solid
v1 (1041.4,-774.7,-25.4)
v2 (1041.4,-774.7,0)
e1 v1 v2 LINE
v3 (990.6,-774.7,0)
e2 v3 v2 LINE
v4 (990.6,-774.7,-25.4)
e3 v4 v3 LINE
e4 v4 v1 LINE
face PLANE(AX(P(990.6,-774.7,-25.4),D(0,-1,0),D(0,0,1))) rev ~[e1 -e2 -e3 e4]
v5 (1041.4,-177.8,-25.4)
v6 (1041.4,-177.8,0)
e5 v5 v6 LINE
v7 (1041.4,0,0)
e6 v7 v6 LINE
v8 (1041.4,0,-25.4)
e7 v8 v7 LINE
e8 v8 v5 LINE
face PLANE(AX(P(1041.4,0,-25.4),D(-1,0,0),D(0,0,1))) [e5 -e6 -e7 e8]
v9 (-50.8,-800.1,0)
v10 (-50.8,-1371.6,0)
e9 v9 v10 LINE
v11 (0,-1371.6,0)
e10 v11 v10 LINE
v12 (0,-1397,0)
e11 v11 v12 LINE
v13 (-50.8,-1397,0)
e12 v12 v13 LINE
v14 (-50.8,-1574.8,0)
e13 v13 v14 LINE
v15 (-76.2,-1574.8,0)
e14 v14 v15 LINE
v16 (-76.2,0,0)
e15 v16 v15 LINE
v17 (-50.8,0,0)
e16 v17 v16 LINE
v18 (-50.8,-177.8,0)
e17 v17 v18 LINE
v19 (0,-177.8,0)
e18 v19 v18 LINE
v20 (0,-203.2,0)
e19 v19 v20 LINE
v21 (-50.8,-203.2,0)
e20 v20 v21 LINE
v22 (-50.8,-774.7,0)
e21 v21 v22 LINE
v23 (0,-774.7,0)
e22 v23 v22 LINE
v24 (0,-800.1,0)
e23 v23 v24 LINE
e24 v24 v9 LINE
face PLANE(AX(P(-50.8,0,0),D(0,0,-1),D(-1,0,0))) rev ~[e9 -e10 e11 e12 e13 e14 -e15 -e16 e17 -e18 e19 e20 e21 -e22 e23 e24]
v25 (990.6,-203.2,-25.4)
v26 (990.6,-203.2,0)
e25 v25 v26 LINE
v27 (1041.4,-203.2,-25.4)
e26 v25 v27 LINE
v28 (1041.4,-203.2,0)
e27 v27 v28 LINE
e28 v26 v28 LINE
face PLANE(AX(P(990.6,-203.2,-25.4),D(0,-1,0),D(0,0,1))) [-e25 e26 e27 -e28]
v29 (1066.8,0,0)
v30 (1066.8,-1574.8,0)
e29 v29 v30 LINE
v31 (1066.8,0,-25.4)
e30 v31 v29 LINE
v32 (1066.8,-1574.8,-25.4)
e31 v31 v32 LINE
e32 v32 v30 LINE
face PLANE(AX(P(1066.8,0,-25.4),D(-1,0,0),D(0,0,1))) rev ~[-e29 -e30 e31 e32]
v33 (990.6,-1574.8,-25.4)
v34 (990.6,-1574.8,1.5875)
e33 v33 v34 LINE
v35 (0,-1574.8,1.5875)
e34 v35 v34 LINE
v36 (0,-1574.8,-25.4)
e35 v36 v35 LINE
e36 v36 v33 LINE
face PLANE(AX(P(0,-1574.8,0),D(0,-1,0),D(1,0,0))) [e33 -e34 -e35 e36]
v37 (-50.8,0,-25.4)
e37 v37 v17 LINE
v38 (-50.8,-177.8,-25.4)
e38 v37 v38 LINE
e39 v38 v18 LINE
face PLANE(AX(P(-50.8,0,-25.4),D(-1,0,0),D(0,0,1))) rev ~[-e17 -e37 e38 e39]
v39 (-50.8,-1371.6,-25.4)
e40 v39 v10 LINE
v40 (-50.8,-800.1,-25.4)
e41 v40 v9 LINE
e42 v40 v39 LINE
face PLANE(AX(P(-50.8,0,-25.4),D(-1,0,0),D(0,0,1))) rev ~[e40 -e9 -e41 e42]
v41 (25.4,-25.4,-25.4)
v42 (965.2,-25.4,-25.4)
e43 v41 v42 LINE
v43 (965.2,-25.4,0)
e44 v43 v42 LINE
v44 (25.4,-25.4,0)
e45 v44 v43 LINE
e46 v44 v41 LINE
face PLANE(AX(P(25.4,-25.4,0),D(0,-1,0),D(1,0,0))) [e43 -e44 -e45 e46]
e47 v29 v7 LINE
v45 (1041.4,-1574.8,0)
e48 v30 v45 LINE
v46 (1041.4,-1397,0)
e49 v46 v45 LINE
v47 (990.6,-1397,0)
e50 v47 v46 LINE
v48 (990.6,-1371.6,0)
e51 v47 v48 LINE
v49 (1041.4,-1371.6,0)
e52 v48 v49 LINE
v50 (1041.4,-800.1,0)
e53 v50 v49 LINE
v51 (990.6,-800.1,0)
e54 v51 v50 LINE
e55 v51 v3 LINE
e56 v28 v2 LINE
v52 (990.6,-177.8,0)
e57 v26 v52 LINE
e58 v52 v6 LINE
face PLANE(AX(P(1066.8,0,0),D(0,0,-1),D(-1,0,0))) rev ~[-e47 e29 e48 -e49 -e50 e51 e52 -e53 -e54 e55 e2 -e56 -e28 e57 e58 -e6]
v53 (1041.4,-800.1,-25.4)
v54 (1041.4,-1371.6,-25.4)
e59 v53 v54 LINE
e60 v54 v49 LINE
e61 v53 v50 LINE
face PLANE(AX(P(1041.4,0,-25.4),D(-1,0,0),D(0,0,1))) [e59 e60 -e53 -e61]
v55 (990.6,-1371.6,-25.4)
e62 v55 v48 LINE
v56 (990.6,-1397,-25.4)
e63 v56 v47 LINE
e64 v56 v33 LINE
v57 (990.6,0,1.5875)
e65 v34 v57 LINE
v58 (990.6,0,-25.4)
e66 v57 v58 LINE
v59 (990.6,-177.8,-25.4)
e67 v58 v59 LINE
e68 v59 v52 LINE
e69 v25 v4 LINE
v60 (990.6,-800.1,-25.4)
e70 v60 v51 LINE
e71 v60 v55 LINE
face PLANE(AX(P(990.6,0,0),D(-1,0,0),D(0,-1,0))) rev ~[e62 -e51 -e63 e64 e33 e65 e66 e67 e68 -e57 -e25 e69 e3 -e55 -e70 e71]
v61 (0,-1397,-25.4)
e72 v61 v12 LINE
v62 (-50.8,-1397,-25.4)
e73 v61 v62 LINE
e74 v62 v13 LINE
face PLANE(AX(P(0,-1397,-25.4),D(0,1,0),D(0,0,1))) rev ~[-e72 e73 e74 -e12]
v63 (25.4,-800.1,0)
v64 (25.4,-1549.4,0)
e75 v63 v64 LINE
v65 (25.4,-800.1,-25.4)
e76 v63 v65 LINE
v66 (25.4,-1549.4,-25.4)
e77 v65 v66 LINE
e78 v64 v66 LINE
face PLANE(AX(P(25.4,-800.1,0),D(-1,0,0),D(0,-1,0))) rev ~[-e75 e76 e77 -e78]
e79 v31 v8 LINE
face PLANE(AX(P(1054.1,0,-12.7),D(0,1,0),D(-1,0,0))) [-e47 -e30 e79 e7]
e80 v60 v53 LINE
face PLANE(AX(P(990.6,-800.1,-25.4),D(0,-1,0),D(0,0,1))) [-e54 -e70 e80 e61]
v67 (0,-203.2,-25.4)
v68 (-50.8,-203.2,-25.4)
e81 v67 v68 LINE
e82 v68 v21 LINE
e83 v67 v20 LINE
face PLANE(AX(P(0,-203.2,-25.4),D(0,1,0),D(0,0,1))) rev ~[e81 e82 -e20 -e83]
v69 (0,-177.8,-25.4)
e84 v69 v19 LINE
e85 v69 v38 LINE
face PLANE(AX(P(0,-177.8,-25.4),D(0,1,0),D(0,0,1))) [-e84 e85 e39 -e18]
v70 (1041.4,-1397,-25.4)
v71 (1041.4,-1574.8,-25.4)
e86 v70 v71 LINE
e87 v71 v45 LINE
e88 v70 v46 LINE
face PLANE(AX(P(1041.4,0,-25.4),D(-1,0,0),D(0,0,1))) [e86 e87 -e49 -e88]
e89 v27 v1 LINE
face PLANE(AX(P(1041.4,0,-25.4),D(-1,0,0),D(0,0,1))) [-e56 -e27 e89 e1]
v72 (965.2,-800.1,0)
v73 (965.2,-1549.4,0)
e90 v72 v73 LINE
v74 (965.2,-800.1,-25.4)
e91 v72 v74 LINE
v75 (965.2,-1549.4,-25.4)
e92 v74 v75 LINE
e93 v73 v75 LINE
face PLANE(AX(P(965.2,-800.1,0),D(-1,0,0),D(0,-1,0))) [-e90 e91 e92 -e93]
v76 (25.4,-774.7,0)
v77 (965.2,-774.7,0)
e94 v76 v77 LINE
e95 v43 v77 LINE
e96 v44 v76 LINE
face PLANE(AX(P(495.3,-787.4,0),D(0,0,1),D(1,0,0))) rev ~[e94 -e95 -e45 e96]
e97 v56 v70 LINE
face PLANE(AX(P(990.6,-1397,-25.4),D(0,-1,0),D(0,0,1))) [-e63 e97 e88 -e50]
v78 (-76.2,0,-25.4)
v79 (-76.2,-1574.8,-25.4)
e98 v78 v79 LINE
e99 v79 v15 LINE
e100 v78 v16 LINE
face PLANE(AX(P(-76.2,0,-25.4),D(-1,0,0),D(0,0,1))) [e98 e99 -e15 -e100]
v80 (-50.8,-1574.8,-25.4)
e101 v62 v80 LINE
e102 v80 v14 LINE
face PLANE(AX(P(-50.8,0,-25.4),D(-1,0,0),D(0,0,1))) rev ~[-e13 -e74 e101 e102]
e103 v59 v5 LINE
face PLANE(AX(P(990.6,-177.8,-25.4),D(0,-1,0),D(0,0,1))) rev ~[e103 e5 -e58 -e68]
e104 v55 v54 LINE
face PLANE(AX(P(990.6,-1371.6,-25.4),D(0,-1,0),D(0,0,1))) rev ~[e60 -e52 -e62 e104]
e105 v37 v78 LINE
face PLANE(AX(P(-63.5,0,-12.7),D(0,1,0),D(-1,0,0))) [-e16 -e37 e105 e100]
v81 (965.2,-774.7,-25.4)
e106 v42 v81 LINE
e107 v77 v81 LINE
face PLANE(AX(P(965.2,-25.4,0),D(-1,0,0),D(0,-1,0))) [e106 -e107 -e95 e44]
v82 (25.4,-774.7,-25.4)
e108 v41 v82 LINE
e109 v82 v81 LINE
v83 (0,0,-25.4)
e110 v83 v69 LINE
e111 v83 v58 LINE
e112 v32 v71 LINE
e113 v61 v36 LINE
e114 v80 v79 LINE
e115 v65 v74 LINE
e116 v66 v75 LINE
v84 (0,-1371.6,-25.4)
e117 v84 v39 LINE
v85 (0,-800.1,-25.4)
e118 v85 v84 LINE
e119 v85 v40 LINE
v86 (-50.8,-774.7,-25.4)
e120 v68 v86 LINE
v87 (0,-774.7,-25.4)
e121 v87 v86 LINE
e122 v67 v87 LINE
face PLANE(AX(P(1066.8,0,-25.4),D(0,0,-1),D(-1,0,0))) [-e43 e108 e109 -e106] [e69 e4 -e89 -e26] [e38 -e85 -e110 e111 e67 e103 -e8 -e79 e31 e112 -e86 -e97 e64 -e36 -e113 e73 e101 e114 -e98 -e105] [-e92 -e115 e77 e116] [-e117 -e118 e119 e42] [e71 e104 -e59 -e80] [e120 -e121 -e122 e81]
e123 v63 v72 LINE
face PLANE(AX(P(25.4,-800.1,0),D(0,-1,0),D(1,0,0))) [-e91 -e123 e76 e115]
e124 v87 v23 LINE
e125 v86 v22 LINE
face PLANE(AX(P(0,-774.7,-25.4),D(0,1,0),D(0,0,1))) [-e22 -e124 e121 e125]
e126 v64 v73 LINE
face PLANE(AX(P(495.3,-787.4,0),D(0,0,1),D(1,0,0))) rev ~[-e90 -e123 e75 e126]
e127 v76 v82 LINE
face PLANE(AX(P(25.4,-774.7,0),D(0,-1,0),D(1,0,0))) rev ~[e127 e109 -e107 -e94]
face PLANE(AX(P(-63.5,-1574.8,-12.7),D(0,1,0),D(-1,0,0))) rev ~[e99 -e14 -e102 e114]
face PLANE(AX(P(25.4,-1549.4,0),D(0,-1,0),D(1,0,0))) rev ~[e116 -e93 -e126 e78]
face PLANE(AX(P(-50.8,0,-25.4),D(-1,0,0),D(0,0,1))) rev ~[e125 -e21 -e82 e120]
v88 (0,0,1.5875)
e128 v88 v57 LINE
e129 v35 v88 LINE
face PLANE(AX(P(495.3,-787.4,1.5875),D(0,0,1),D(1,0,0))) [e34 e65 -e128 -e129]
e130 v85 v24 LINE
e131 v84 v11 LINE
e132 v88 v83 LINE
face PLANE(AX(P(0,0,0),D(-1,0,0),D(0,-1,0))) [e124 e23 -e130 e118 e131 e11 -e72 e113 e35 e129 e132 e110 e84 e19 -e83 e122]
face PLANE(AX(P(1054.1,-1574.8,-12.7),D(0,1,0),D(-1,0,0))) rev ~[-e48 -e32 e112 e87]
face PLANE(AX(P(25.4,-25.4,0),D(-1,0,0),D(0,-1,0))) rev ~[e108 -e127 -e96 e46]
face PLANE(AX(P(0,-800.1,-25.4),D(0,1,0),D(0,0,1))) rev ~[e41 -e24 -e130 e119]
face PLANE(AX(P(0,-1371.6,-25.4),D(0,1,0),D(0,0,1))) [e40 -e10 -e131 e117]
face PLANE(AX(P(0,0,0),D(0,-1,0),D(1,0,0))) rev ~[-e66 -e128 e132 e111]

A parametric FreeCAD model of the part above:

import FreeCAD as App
import Part
import Sketcher
from FreeCAD import Vector
Q = App.Units.Quantity

doc = App.newDocument("Part")
body = doc.addObject("PartDesign::Body", "Body")

# Sketch on XY plane
sketch1 = body.newObject("Sketcher::SketchObject", "Sketch")
sketch1.AttachmentSupport = (doc.getObject("XY_Plane"), [""])
sketch1.MapMode = "FlatFace"
sketch1.addGeometry([
    Part.LineSegment(Vector(0, 0, 0), Vector(0, -1575, 0)),
    Part.LineSegment(Vector(0, -1575, 0), Vector(991, -1575, 0)),
    Part.LineSegment(Vector(991, -1575, 0), Vector(991, 0, 0)),
    Part.LineSegment(Vector(991, 0, 0), Vector(0, 0, 0)),
], False)
sketch1.addConstraint([
    Sketcher.Constraint("Coincident", 0, 2, 1, 1),
    Sketcher.Constraint("Coincident", 1, 2, 2, 1),
    Sketcher.Constraint("Coincident", 2, 2, 3, 1),
    Sketcher.Constraint("Coincident", 3, 2, 0, 1),
    Sketcher.Constraint("Vertical", 0),
    Sketcher.Constraint("Horizontal", 1),
    Sketcher.Constraint("Vertical", 2),
    Sketcher.Constraint("Horizontal", 3),
    Sketcher.Constraint("Coincident", 3, 2, -1, 1),
    Sketcher.Constraint("DistanceX", 1, 1, 1, 2, Q("39 in")),
    Sketcher.Constraint("DistanceY", 0, 2, 0, 1, Q("62 in")),
])
pad1 = body.newObject("PartDesign::Pad", "Pad")
pad1.Profile = sketch1
pad1.Length = Q("0.0625 in")

# Sketch on XY plane
sketch2 = body.newObject("Sketcher::SketchObject", "Sketch001")
sketch2.AttachmentSupport = (doc.getObject("XY_Plane"), [""])
sketch2.MapMode = "FlatFace"
sketch2.addGeometry([
    Part.LineSegment(Vector(0, -1575, 0), Vector(0, 0, 0)),  # 0
    Part.LineSegment(Vector(0, 0, 0), Vector(991, 0, 0)),  # 1
    Part.LineSegment(Vector(991, 0, 0), Vector(991, -1575, 0)),  # 2
    Part.LineSegment(Vector(991, -1575, 0), Vector(0, -1575, 0)),  # 3
    Part.LineSegment(Vector(965, -25, 0), Vector(25, -25, 0)),  # 4
    Part.LineSegment(Vector(25, -25, 0), Vector(25, -775, 0)),  # 5
    Part.LineSegment(Vector(25, -775, 0), Vector(965, -775, 0)),  # 6
    Part.LineSegment(Vector(965, -775, 0), Vector(965, -25, 0)),  # 7
    Part.LineSegment(Vector(965, -800, 0), Vector(25, -800, 0)),  # 8
    Part.LineSegment(Vector(25, -800, 0), Vector(25, -1549, 0)),  # 9
    Part.LineSegment(Vector(25, -1549, 0), Vector(965, -1549, 0)),  # 10
    Part.LineSegment(Vector(965, -1549, 0), Vector(965, -800, 0)),  # 11
], False)
sketch2.addConstraint([
    Sketcher.Constraint("Coincident", 0, 2, 1, 1),
    Sketcher.Constraint("Coincident", 1, 2, 2, 1),
    Sketcher.Constraint("Coincident", 2, 2, 3, 1),
    Sketcher.Constraint("Coincident", 3, 2, 0, 1),
    Sketcher.Constraint("Coincident", 4, 2, 5, 1),
    Sketcher.Constraint("Coincident", 5, 2, 6, 1),
    Sketcher.Constraint("Coincident", 6, 2, 7, 1),
    Sketcher.Constraint("Coincident", 7, 2, 4, 1),
    Sketcher.Constraint("Coincident", 8, 2, 9, 1),
    Sketcher.Constraint("Coincident", 9, 2, 10, 1),
    Sketcher.Constraint("Coincident", 10, 2, 11, 1),
    Sketcher.Constraint("Coincident", 11, 2, 8, 1),
    Sketcher.Constraint("Vertical", 0),
    Sketcher.Constraint("Horizontal", 1),
    Sketcher.Constraint("Vertical", 2),
    Sketcher.Constraint("Horizontal", 3),
    Sketcher.Constraint("Horizontal", 4),
    Sketcher.Constraint("Vertical", 5),
    Sketcher.Constraint("Horizontal", 6),
    Sketcher.Constraint("Vertical", 7),
    Sketcher.Constraint("Horizontal", 8),
    Sketcher.Constraint("Vertical", 9),
    Sketcher.Constraint("Horizontal", 10),
    Sketcher.Constraint("Vertical", 11),
    Sketcher.Constraint("Coincident", 0, 2, -1, 1),
    Sketcher.Constraint("Vertical", 5, 2, 8, 2),
    Sketcher.Constraint("Vertical", 7, 2, 10, 2),
    Sketcher.Constraint("Equal", 7, 9),
    Sketcher.Constraint("DistanceX", 1, 1, 1, 2, Q("39 in")),
    Sketcher.Constraint("DistanceX", 4, 2, 4, 1, Q("37 in")),
    Sketcher.Constraint("DistanceY", 0, 1, 0, 2, Q("62 in")),
    Sketcher.Constraint("DistanceY", 5, 2, 5, 1, Q("29.5 in")),
    Sketcher.Constraint("DistanceX", -1, 1, 4, 2, Q("1 in")),
    Sketcher.Constraint("DistanceY", 4, 2, -1, 1, Q("1 in")),
    Sketcher.Constraint("DistanceY", 9, 2, -1, 1, Q("61 in")),
])
pad2 = body.newObject("PartDesign::Pad", "Pad001")
pad2.Profile = sketch2
pad2.Length = Q("1 in")
pad2.Reversed = True

# Sketch on YZ plane
sketch3 = body.newObject("Sketcher::SketchObject", "Sketch002")
sketch3.AttachmentSupport = (doc.getObject("YZ_Plane"), [""])
sketch3.MapMode = "FlatFace"
sketch3.addGeometry([
    Part.LineSegment(Vector(-178, 0, 0), Vector(-178, -25, 0)),  # 0
    Part.LineSegment(Vector(-178, -25, 0), Vector(-203, -25, 0)),  # 1
    Part.LineSegment(Vector(-203, -25, 0), Vector(-203, 0, 0)),  # 2
    Part.LineSegment(Vector(-203, 0, 0), Vector(-178, 0, 0)),  # 3
    Part.LineSegment(Vector(-775, 0, 0), Vector(-775, -25, 0)),  # 4
    Part.LineSegment(Vector(-775, -25, 0), Vector(-800, -25, 0)),  # 5
    Part.LineSegment(Vector(-800, -25, 0), Vector(-800, 0, 0)),  # 6
    Part.LineSegment(Vector(-800, 0, 0), Vector(-775, 0, 0)),  # 7
    Part.LineSegment(Vector(-1372, 0, 0), Vector(-1372, -25, 0)),  # 8
    Part.LineSegment(Vector(-1372, -25, 0), Vector(-1397, -25, 0)),  # 9
    Part.LineSegment(Vector(-1397, -25, 0), Vector(-1397, 0, 0)),  # 10
    Part.LineSegment(Vector(-1397, 0, 0), Vector(-1372, 0, 0)),  # 11
], False)
sketch3.addConstraint([
    Sketcher.Constraint("Coincident", 0, 2, 1, 1),
    Sketcher.Constraint("Coincident", 1, 2, 2, 1),
    Sketcher.Constraint("Coincident", 2, 2, 3, 1),
    Sketcher.Constraint("Coincident", 3, 2, 0, 1),
    Sketcher.Constraint("Coincident", 4, 2, 5, 1),
    Sketcher.Constraint("Coincident", 5, 2, 6, 1),
    Sketcher.Constraint("Coincident", 6, 2, 7, 1),
    Sketcher.Constraint("Coincident", 7, 2, 4, 1),
    Sketcher.Constraint("Coincident", 8, 2, 9, 1),
    Sketcher.Constraint("Coincident", 9, 2, 10, 1),
    Sketcher.Constraint("Coincident", 10, 2, 11, 1),
    Sketcher.Constraint("Coincident", 11, 2, 8, 1),
    Sketcher.Constraint("Vertical", 0),
    Sketcher.Constraint("Horizontal", 1),
    Sketcher.Constraint("Vertical", 2),
    Sketcher.Constraint("Horizontal", 3),
    Sketcher.Constraint("Vertical", 4),
    Sketcher.Constraint("Horizontal", 5),
    Sketcher.Constraint("Vertical", 6),
    Sketcher.Constraint("Horizontal", 7),
    Sketcher.Constraint("Vertical", 8),
    Sketcher.Constraint("Horizontal", 9),
    Sketcher.Constraint("Vertical", 10),
    Sketcher.Constraint("Horizontal", 11),
    Sketcher.Constraint("PointOnObject", 2, 2, -1),
    Sketcher.Constraint("PointOnObject", 6, 2, -1),
    Sketcher.Constraint("PointOnObject", 10, 2, -1),
    Sketcher.Constraint("Horizontal", 1, 2, 4, 2),
    Sketcher.Constraint("Horizontal", 5, 2, 8, 2),
    Sketcher.Constraint("Equal", 3, 5),
    Sketcher.Constraint("Equal", 7, 9),
    Sketcher.Constraint("Equal", 11, 0),
    Sketcher.Constraint("DistanceX", 1, 2, 1, 1, Q("1 in")),
    Sketcher.Constraint("DistanceX", 0, 2, -1, 1, Q("7 in")),
    Sketcher.Constraint("DistanceX", 8, 2, -1, 1, Q("54 in")),
    Sketcher.Constraint("DistanceX", 4, 2, -1, 1, Q("30.5 in")),
])
pad3 = body.newObject("PartDesign::Pad", "Pad002")
pad3.Profile = sketch3
pad3.Length = Q("2 in")
pad3.Reversed = True

# Sketch on XZ plane
sketch4 = body.newObject("Sketcher::SketchObject", "Sketch003")
sketch4.AttachmentSupport = (doc.getObject("XZ_Plane"), [""])
sketch4.MapMode = "FlatFace"
sketch4.addGeometry([
    Part.LineSegment(Vector(-51, 0, 0), Vector(-51, -25, 0)),
    Part.LineSegment(Vector(-51, -25, 0), Vector(-76, -25, 0)),
    Part.LineSegment(Vector(-76, -25, 0), Vector(-76, 0, 0)),
    Part.LineSegment(Vector(-76, 0, 0), Vector(-51, 0, 0)),
], False)
sketch4.addConstraint([
    Sketcher.Constraint("Coincident", 0, 2, 1, 1),
    Sketcher.Constraint("Coincident", 1, 2, 2, 1),
    Sketcher.Constraint("Coincident", 2, 2, 3, 1),
    Sketcher.Constraint("Coincident", 3, 2, 0, 1),
    Sketcher.Constraint("Vertical", 0),
    Sketcher.Constraint("Horizontal", 1),
    Sketcher.Constraint("Vertical", 2),
    Sketcher.Constraint("Horizontal", 3),
    Sketcher.Constraint("PointOnObject", 2, 2, -1),
    Sketcher.Constraint("Equal", 3, 0),
    Sketcher.Constraint("DistanceX", 1, 2, 1, 1, Q("1 in")),
    Sketcher.Constraint("DistanceX", 0, 2, -1, 1, Q("2 in")),
])
pad4 = body.newObject("PartDesign::Pad", "Pad003")
pad4.Profile = sketch4
pad4.Length = Q("62 in")

# Sketch on YZ plane
sketch5 = body.newObject("Sketcher::SketchObject", "Sketch004")
sketch5.AttachmentSupport = (doc.getObject("YZ_Plane"), [""])
sketch5.MapMode = "FlatFace"
sketch5.AttachmentOffset = App.Placement(Vector(0, 0, 39 * 25.4), App.Rotation())
sketch5.addGeometry([
    Part.LineSegment(Vector(-1397, 0, 0), Vector(-1397, -25, 0)),  # 0
    Part.LineSegment(Vector(-1397, -25, 0), Vector(-1372, -25, 0)),  # 1
    Part.LineSegment(Vector(-1372, -25, 0), Vector(-1372, 0, 0)),  # 2
    Part.LineSegment(Vector(-1372, 0, 0), Vector(-1397, 0, 0)),  # 3
    Part.LineSegment(Vector(-800, 0, 0), Vector(-800, -25, 0)),  # 4
    Part.LineSegment(Vector(-800, -25, 0), Vector(-775, -25, 0)),  # 5
    Part.LineSegment(Vector(-775, -25, 0), Vector(-775, 0, 0)),  # 6
    Part.LineSegment(Vector(-775, 0, 0), Vector(-800, 0, 0)),  # 7
    Part.LineSegment(Vector(-203, 0, 0), Vector(-203, -25, 0)),  # 8
    Part.LineSegment(Vector(-203, -25, 0), Vector(-178, -25, 0)),  # 9
    Part.LineSegment(Vector(-178, -25, 0), Vector(-178, 0, 0)),  # 10
    Part.LineSegment(Vector(-178, 0, 0), Vector(-203, 0, 0)),  # 11
], False)
sketch5.addConstraint([
    Sketcher.Constraint("Coincident", 0, 2, 1, 1),
    Sketcher.Constraint("Coincident", 1, 2, 2, 1),
    Sketcher.Constraint("Coincident", 2, 2, 3, 1),
    Sketcher.Constraint("Coincident", 3, 2, 0, 1),
    Sketcher.Constraint("Coincident", 4, 2, 5, 1),
    Sketcher.Constraint("Coincident", 5, 2, 6, 1),
    Sketcher.Constraint("Coincident", 6, 2, 7, 1),
    Sketcher.Constraint("Coincident", 7, 2, 4, 1),
    Sketcher.Constraint("Coincident", 8, 2, 9, 1),
    Sketcher.Constraint("Coincident", 9, 2, 10, 1),
    Sketcher.Constraint("Coincident", 10, 2, 11, 1),
    Sketcher.Constraint("Coincident", 11, 2, 8, 1),
    Sketcher.Constraint("Vertical", 0),
    Sketcher.Constraint("Horizontal", 1),
    Sketcher.Constraint("Vertical", 2),
    Sketcher.Constraint("Horizontal", 3),
    Sketcher.Constraint("Vertical", 4),
    Sketcher.Constraint("Horizontal", 5),
    Sketcher.Constraint("Vertical", 6),
    Sketcher.Constraint("Horizontal", 7),
    Sketcher.Constraint("Vertical", 8),
    Sketcher.Constraint("Horizontal", 9),
    Sketcher.Constraint("Vertical", 10),
    Sketcher.Constraint("Horizontal", 11),
    Sketcher.Constraint("PointOnObject", 2, 2, -1),
    Sketcher.Constraint("PointOnObject", 6, 2, -1),
    Sketcher.Constraint("PointOnObject", 10, 2, -1),
    Sketcher.Constraint("Horizontal", 1, 2, 4, 2),
    Sketcher.Constraint("Horizontal", 5, 2, 8, 2),
    Sketcher.Constraint("Equal", 3, 5),
    Sketcher.Constraint("Equal", 7, 9),
    Sketcher.Constraint("Equal", 11, 0),
    Sketcher.Constraint("DistanceX", 1, 1, 1, 2, Q("1 in")),
    Sketcher.Constraint("DistanceX", 0, 2, -1, 1, Q("55 in")),
    Sketcher.Constraint("DistanceX", 8, 2, -1, 1, Q("8 in")),
    Sketcher.Constraint("DistanceX", 4, 2, -1, 1, Q("31.5 in")),
])
pad5 = body.newObject("PartDesign::Pad", "Pad004")
pad5.Profile = sketch5
pad5.Length = Q("2 in")

# Sketch on XZ plane
sketch6 = body.newObject("Sketcher::SketchObject", "Sketch005")
sketch6.AttachmentSupport = (doc.getObject("XZ_Plane"), [""])
sketch6.MapMode = "FlatFace"
sketch6.addGeometry([
    Part.LineSegment(Vector(1067, 0, 0), Vector(1067, -25, 0)),
    Part.LineSegment(Vector(1067, -25, 0), Vector(1041, -25, 0)),
    Part.LineSegment(Vector(1041, -25, 0), Vector(1041, 0, 0)),
    Part.LineSegment(Vector(1041, 0, 0), Vector(1067, 0, 0)),
], False)
sketch6.addConstraint([
    Sketcher.Constraint("Coincident", 0, 2, 1, 1),
    Sketcher.Constraint("Coincident", 1, 2, 2, 1),
    Sketcher.Constraint("Coincident", 2, 2, 3, 1),
    Sketcher.Constraint("Coincident", 3, 2, 0, 1),
    Sketcher.Constraint("Vertical", 0),
    Sketcher.Constraint("Horizontal", 1),
    Sketcher.Constraint("Vertical", 2),
    Sketcher.Constraint("Horizontal", 3),
    Sketcher.Constraint("PointOnObject", 2, 2, -1),
    Sketcher.Constraint("Equal", 3, 0),
    Sketcher.Constraint("DistanceX", 1, 2, 1, 1, Q("1 in")),
    Sketcher.Constraint("DistanceX", -1, 1, 0, 2, Q("42 in")),
])
pad6 = body.newObject("PartDesign::Pad", "Pad005")
pad6.Profile = sketch6
pad6.Length = Q("62 in")

doc.recompute()
